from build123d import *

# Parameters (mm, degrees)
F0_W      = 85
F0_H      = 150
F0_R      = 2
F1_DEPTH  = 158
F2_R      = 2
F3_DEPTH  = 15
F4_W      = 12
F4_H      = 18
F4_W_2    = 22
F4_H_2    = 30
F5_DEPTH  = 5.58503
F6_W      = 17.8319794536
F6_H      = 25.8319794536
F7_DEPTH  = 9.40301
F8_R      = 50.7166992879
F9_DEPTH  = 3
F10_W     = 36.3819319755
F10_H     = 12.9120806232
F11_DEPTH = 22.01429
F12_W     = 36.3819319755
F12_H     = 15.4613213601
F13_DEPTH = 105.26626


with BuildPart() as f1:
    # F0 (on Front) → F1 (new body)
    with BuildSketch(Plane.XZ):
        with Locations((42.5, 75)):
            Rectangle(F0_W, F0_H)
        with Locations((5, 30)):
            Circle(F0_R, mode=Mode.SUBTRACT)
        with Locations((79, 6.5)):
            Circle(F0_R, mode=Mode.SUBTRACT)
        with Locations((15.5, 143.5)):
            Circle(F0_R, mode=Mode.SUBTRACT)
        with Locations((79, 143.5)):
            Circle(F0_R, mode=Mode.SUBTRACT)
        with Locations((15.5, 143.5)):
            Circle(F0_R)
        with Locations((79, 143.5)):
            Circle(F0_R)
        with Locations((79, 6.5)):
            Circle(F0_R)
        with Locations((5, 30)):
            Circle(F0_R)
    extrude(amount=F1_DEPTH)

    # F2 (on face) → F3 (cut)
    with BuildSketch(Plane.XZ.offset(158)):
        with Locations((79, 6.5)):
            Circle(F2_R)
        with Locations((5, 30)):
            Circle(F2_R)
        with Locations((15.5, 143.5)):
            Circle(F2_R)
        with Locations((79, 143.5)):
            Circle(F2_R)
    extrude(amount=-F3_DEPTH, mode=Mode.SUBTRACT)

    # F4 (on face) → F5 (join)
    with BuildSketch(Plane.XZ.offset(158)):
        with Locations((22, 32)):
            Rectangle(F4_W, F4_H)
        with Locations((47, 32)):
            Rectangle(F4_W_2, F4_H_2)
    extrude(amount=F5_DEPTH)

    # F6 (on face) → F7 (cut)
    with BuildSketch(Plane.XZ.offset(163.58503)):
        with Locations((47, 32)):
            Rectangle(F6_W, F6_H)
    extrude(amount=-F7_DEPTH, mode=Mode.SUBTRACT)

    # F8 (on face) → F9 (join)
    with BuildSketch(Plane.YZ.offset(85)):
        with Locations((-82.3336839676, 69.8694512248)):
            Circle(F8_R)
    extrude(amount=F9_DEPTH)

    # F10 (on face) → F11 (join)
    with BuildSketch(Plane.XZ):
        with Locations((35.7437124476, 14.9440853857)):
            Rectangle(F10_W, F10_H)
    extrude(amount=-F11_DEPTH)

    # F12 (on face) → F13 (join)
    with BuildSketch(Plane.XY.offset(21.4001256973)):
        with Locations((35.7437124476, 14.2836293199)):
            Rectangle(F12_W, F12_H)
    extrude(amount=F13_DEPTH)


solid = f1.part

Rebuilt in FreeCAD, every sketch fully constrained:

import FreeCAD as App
import Part
import Sketcher

V = App.Vector

doc = App.newDocument("Part")
body = doc.addObject("PartDesign::Body", "Body")

# Sketch on XZ plane
sketch1 = body.newObject("Sketcher::SketchObject", "Sketch")
sketch1.AttachmentSupport = (doc.getObject("XZ_Plane"), [""])
sketch1.MapMode = "FlatFace"
sketch1.addGeometry([
    Part.LineSegment(V(0, 150, 0), V(0, 0, 0)),
    Part.LineSegment(V(0, 0, 0), V(85, 0, 0)),
    Part.LineSegment(V(85, 0, 0), V(85, 150, 0)),
    Part.LineSegment(V(85, 150, 0), V(0, 150, 0)),
], False)
sketch1.addConstraint([
    Sketcher.Constraint("Coincident", 0, 2, 1, 1),
    Sketcher.Constraint("Coincident", 1, 2, 2, 1),
    Sketcher.Constraint("Coincident", 2, 2, 3, 1),
    Sketcher.Constraint("Coincident", 3, 2, 0, 1),
    Sketcher.Constraint("Vertical", 0),
    Sketcher.Constraint("Horizontal", 1),
    Sketcher.Constraint("Vertical", 2),
    Sketcher.Constraint("Horizontal", 3),
    Sketcher.Constraint("Coincident", 0, 2, -1, 1),
    Sketcher.Constraint("DistanceX", 1, 1, 1, 2, 85.0),
    Sketcher.Constraint("DistanceY", 0, 2, 0, 1, 150.0),
])
pad1 = body.newObject("PartDesign::Pad", "Pad")
pad1.Profile = sketch1
pad1.Length = 158

# Sketch on XZ plane
sketch2 = body.newObject("Sketcher::SketchObject", "Sketch001")
sketch2.AttachmentSupport = (doc.getObject("XZ_Plane"), [""])
sketch2.MapMode = "FlatFace"
sketch2.AttachmentOffset = App.Placement(V(0, 0, 158), App.Rotation())
sketch2.addGeometry([
    Part.Circle(V(79, 6.5, 0), V(0, 0, 1), 2),
    Part.Circle(V(5, 30, 0), V(0, 0, 1), 2),
    Part.Circle(V(15.5, 143.5, 0), V(0, 0, 1), 2),
    Part.Circle(V(79, 143.5, 0), V(0, 0, 1), 2),
], False)
sketch2.addConstraint([
    Sketcher.Constraint("Equal", 0, 1),
    Sketcher.Constraint("Equal", 1, 2),
    Sketcher.Constraint("Equal", 2, 3),
    Sketcher.Constraint("Horizontal", 2, 3, 3, 3),
    Sketcher.Constraint("Vertical", 0, 3, 3, 3),
    Sketcher.Constraint("Diameter", 0, 4.0),
    Sketcher.Constraint("DistanceX", -1, 1, 0, 3, 79.0),
    Sketcher.Constraint("DistanceX", -1, 1, 1, 3, 5.0),
    Sketcher.Constraint("DistanceY", -1, 1, 1, 3, 30.0),
    Sketcher.Constraint("DistanceY", 0, 3, 2, 3, 137.0),
    Sketcher.Constraint("DistanceY", -1, 1, 0, 3, 6.5),
    Sketcher.Constraint("DistanceX", -1, 1, 2, 3, 15.5),
])
pocket1 = body.newObject("PartDesign::Pocket", "Pocket")
pocket1.Profile = sketch2
pocket1.Length = 15

# Sketch on XZ plane
sketch3 = body.newObject("Sketcher::SketchObject", "Sketch002")
sketch3.AttachmentSupport = (doc.getObject("XZ_Plane"), [""])
sketch3.MapMode = "FlatFace"
sketch3.AttachmentOffset = App.Placement(V(0, 0, 158), App.Rotation())
sketch3.addGeometry([
    Part.LineSegment(V(16, 41, 0), V(16, 23, 0)),  # 0
    Part.LineSegment(V(16, 23, 0), V(28, 23, 0)),  # 1
    Part.LineSegment(V(28, 23, 0), V(28, 41, 0)),  # 2
    Part.LineSegment(V(28, 41, 0), V(16, 41, 0)),  # 3
    Part.LineSegment(V(36, 47, 0), V(36, 17, 0)),  # 4
    Part.LineSegment(V(36, 17, 0), V(58, 17, 0)),  # 5
    Part.LineSegment(V(58, 17, 0), V(58, 47, 0)),  # 6
    Part.LineSegment(V(58, 47, 0), V(36, 47, 0)),  # 7
], False)
sketch3.addConstraint([
    Sketcher.Constraint("Coincident", 0, 2, 1, 1),
    Sketcher.Constraint("Coincident", 1, 2, 2, 1),
    Sketcher.Constraint("Coincident", 2, 2, 3, 1),
    Sketcher.Constraint("Coincident", 3, 2, 0, 1),
    Sketcher.Constraint("Coincident", 4, 2, 5, 1),
    Sketcher.Constraint("Coincident", 5, 2, 6, 1),
    Sketcher.Constraint("Coincident", 6, 2, 7, 1),
    Sketcher.Constraint("Coincident", 7, 2, 4, 1),
    Sketcher.Constraint("Vertical", 0),
    Sketcher.Constraint("Horizontal", 1),
    Sketcher.Constraint("Vertical", 2),
    Sketcher.Constraint("Horizontal", 3),
    Sketcher.Constraint("Vertical", 4),
    Sketcher.Constraint("Horizontal", 5),
    Sketcher.Constraint("Vertical", 6),
    Sketcher.Constraint("Horizontal", 7),
    Sketcher.Constraint("DistanceX", 1, 1, 1, 2, 12.0),
    Sketcher.Constraint("DistanceX", 5, 1, 5, 2, 22.0),
    Sketcher.Constraint("DistanceY", 0, 2, 0, 1, 18.0),
    Sketcher.Constraint("DistanceY", 4, 2, 4, 1, 30.0),
    Sketcher.Constraint("DistanceX", -1, 1, 0, 2, 16.0),
    Sketcher.Constraint("DistanceY", -1, 1, 0, 2, 23.0),
    Sketcher.Constraint("DistanceX", -1, 1, 4, 2, 36.0),
    Sketcher.Constraint("DistanceY", -1, 1, 4, 2, 17.0),
])
pad2 = body.newObject("PartDesign::Pad", "Pad001")
pad2.Profile = sketch3
pad2.Length = 5.58503

# Sketch on XZ plane
sketch4 = body.newObject("Sketcher::SketchObject", "Sketch003")
sketch4.AttachmentSupport = (doc.getObject("XZ_Plane"), [""])
sketch4.MapMode = "FlatFace"
sketch4.AttachmentOffset = App.Placement(V(0, 0, 163.58503), App.Rotation())
sketch4.addGeometry([
    Part.LineSegment(V(38, 45, 0), V(38, 19, 0)),
    Part.LineSegment(V(38, 19, 0), V(56, 19, 0)),
    Part.LineSegment(V(56, 19, 0), V(56, 45, 0)),
    Part.LineSegment(V(56, 45, 0), V(38, 45, 0)),
], False)
sketch4.addConstraint([
    Sketcher.Constraint("Coincident", 0, 2, 1, 1),
    Sketcher.Constraint("Coincident", 1, 2, 2, 1),
    Sketcher.Constraint("Coincident", 2, 2, 3, 1),
    Sketcher.Constraint("Coincident", 3, 2, 0, 1),
    Sketcher.Constraint("Vertical", 0),
    Sketcher.Constraint("Horizontal", 1),
    Sketcher.Constraint("Vertical", 2),
    Sketcher.Constraint("Horizontal", 3),
    Sketcher.Constraint("DistanceX", 1, 1, 1, 2, 17.831979),
    Sketcher.Constraint("DistanceY", 0, 2, 0, 1, 25.831979),
    Sketcher.Constraint("DistanceX", -1, 1, 0, 2, 38.08401),
    Sketcher.Constraint("DistanceY", -1, 1, 0, 2, 19.08401),
])
pocket2 = body.newObject("PartDesign::Pocket", "Pocket001")
pocket2.Profile = sketch4
pocket2.Length = 9.40301

# Sketch on YZ plane
sketch5 = body.newObject("Sketcher::SketchObject", "Sketch004")
sketch5.AttachmentSupport = (doc.getObject("YZ_Plane"), [""])
sketch5.MapMode = "FlatFace"
sketch5.AttachmentOffset = App.Placement(V(0, 0, 85), App.Rotation())
sketch5.addGeometry(Part.Circle(V(-82, 70, 0), V(0, 0, 1), 51), False)
sketch5.addConstraint([
    Sketcher.Constraint("Diameter", 0, 101.433399),
    Sketcher.Constraint("DistanceY", -1, 1, 0, 3, 69.869451),
    Sketcher.Constraint("DistanceX", 0, 3, -1, 1, 82.333684),
])
pad3 = body.newObject("PartDesign::Pad", "Pad002")
pad3.Profile = sketch5
pad3.Length = 3

# Sketch on XZ plane
sketch6 = body.newObject("Sketcher::SketchObject", "Sketch005")
sketch6.AttachmentSupport = (doc.getObject("XZ_Plane"), [""])
sketch6.MapMode = "FlatFace"
sketch6.addGeometry([
    Part.LineSegment(V(18, 21, 0), V(18, 8, 0)),
    Part.LineSegment(V(18, 8, 0), V(54, 8, 0)),
    Part.LineSegment(V(54, 8, 0), V(54, 21, 0)),
    Part.LineSegment(V(54, 21, 0), V(18, 21, 0)),
], False)
sketch6.addConstraint([
    Sketcher.Constraint("Coincident", 0, 2, 1, 1),
    Sketcher.Constraint("Coincident", 1, 2, 2, 1),
    Sketcher.Constraint("Coincident", 2, 2, 3, 1),
    Sketcher.Constraint("Coincident", 3, 2, 0, 1),
    Sketcher.Constraint("Vertical", 0),
    Sketcher.Constraint("Horizontal", 1),
    Sketcher.Constraint("Vertical", 2),
    Sketcher.Constraint("Horizontal", 3),
    Sketcher.Constraint("DistanceX", 1, 1, 1, 2, 36.381932),
    Sketcher.Constraint("DistanceY", 0, 2, 0, 1, 12.912081),
    Sketcher.Constraint("DistanceX", -1, 1, 1, 2, 53.934678),
    Sketcher.Constraint("DistanceY", -1, 1, 0, 2, 8.488045),
])
pad4 = body.newObject("PartDesign::Pad", "Pad003")
pad4.Profile = sketch6
pad4.Length = 22.01429
pad4.Reversed = True

# Sketch on XY plane
sketch7 = body.newObject("Sketcher::SketchObject", "Sketch006")
sketch7.AttachmentSupport = (doc.getObject("XY_Plane"), [""])
sketch7.MapMode = "FlatFace"
sketch7.AttachmentOffset = App.Placement(V(0, 0, 21.400126), App.Rotation())
sketch7.addGeometry([
    Part.LineSegment(V(18, 22, 0), V(18, 7, 0)),
    Part.LineSegment(V(18, 7, 0), V(54, 7, 0)),
    Part.LineSegment(V(54, 7, 0), V(54, 22, 0)),
    Part.LineSegment(V(54, 22, 0), V(18, 22, 0)),
], False)
sketch7.addConstraint([
    Sketcher.Constraint("Coincident", 0, 2, 1, 1),
    Sketcher.Constraint("Coincident", 1, 2, 2, 1),
    Sketcher.Constraint("Coincident", 2, 2, 3, 1),
    Sketcher.Constraint("Coincident", 3, 2, 0, 1),
    Sketcher.Constraint("Vertical", 0),
    Sketcher.Constraint("Horizontal", 1),
    Sketcher.Constraint("Vertical", 2),
    Sketcher.Constraint("Horizontal", 3),
    Sketcher.Constraint("DistanceX", 1, 1, 1, 2, 36.381932),
    Sketcher.Constraint("DistanceY", 0, 2, 0, 1, 15.461321),
    Sketcher.Constraint("DistanceY", -1, 1, 0, 2, 6.552969),
    Sketcher.Constraint("DistanceX", -1, 1, 1, 2, 53.934678),
])
pad5 = body.newObject("PartDesign::Pad", "Pad004")
pad5.Profile = sketch7
pad5.Length = 105.26626

doc.recompute()
